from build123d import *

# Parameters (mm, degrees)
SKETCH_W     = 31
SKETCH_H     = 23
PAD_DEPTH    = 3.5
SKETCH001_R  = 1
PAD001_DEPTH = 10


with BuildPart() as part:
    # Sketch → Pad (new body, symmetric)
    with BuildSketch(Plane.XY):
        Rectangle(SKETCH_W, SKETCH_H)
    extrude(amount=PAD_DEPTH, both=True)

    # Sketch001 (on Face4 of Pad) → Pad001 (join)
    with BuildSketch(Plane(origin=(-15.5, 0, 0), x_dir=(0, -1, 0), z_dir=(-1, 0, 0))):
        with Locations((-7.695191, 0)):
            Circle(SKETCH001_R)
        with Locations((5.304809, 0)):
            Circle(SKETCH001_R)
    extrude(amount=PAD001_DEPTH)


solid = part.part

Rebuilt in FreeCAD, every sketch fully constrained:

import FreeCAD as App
import Part
import Sketcher
from FreeCAD import Vector


def add_polygon(sketch, points):
    """Adds a closed chain of lines whose ends are joined by coincident constraints."""
    first, n = sketch.GeometryCount, len(points)
    for a, b in zip(points, points[1:] + points[:1]):
        sketch.addGeometry(Part.LineSegment(App.Vector(*a, 0), App.Vector(*b, 0)), False)
    for i in range(n):
        sketch.addConstraint(Sketcher.Constraint("Coincident", first + i, 2, first + (i + 1) % n, 1))

doc = App.newDocument("Part")
body = doc.addObject("PartDesign::Body", "Body")

sketch1 = body.newObject("Sketcher::SketchObject", "Sketch")
sketch1.AttachmentSupport = (doc.getObject("XY_Plane"), [""])
sketch1.MapMode = "FlatFace"
add_polygon(sketch1, [(-16, 12), (-16, -12), (16, -12), (16, 12)])
sketch1.addConstraint([
    Sketcher.Constraint("Vertical", 0),
    Sketcher.Constraint("Horizontal", 1),
    Sketcher.Constraint("Vertical", 2),
    Sketcher.Constraint("Horizontal", 3),
    Sketcher.Constraint("Symmetric", 0, 2, 2, 2, -1, 1),
    Sketcher.Constraint("DistanceX", 1, 1, 1, 2, 31.0),
    Sketcher.Constraint("DistanceY", 0, 2, 0, 1, 23.0),
])
pad1 = body.newObject("PartDesign::Pad", "Pad")
pad1.Profile = sketch1
pad1.Length = 7
pad1.Midplane = True

sketch2 = body.newObject("Sketcher::SketchObject", "Sketch001")
sketch2.AttachmentSupport = (doc.getObject("YZ_Plane"), [""])
sketch2.MapMode = "FlatFace"
sketch2.AttachmentOffset = App.Placement(Vector(0, 0, -15.5), App.Rotation())
sketch2.addGeometry([
    Part.Circle(Vector(7.7, 0, 0), Vector(0, 0, 1), 1),
    Part.Circle(Vector(-5.3, 0, 0), Vector(0, 0, 1), 1),
], False)
sketch2.addConstraint([
    Sketcher.Constraint("Equal", 0, 1),
    Sketcher.Constraint("PointOnObject", 0, 3, -1),
    Sketcher.Constraint("PointOnObject", 1, 3, -1),
    Sketcher.Constraint("Diameter", 0, 2.0),
    Sketcher.Constraint("DistanceX", 1, 3, 0, 3, 13.0),
    Sketcher.Constraint("DistanceX", -1, 1, 0, 3, 7.695191),
])
pad2 = body.newObject("PartDesign::Pad", "Pad001")
pad2.Profile = sketch2
pad2.Length = 10
pad2.Reversed = True

doc.recompute()
